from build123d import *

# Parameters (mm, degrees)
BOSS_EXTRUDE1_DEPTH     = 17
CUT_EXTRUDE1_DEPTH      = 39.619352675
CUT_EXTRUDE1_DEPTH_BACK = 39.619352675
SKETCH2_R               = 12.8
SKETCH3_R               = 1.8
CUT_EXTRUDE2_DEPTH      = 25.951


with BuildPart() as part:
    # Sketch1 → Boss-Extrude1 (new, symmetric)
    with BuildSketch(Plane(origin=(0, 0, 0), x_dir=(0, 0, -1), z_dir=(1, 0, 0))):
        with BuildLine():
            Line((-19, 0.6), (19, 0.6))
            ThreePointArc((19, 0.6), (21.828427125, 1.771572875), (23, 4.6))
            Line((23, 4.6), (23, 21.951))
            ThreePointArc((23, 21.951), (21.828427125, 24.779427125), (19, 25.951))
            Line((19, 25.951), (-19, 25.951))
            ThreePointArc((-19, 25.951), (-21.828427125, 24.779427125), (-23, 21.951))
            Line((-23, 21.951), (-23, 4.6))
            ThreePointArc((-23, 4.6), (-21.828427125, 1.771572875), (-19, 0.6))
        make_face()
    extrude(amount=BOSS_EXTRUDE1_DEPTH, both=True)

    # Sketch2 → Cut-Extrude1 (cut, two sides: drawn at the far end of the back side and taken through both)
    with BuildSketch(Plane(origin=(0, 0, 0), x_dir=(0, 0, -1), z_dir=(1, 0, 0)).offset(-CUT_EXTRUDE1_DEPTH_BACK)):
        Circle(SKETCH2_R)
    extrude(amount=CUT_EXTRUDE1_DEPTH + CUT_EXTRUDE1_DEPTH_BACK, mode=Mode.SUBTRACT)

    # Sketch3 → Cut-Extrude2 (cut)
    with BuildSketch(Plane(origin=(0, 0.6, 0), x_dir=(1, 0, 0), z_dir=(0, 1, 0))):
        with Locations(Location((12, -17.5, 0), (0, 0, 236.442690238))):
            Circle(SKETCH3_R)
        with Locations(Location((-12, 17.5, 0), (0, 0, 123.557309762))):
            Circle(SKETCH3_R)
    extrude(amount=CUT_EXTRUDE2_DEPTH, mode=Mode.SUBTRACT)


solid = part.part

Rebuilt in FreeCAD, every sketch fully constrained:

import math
import FreeCAD as App
import Part
import Sketcher

V = App.Vector

doc = App.newDocument("Part")
body = doc.addObject("PartDesign::Body", "Body")

# Sketch on YZ plane
sketch1 = doc.addObject("Sketcher::SketchObject", "Sketch")
body.addObject(sketch1)
sketch1.AttachmentSupport = (doc.YZ_Plane, [""])
sketch1.MapMode = "FlatFace"
sketch1.addGeometry([
    Part.LineSegment(V(0.6, 19, 0), V(0.6, -19, 0)),  # 0
    Part.ArcOfCircle(Part.Circle(V(4.6, -19, 0), V(0, 0, 1), 4), math.radians(180), math.radians(270)),  # 1
    Part.LineSegment(V(4.6, -23, 0), V(22, -23, 0)),  # 2
    Part.ArcOfCircle(Part.Circle(V(22, -19, 0), V(0, 0, 1), 4), math.radians(-90), math.radians(0)),  # 3
    Part.LineSegment(V(26, -19, 0), V(26, 19, 0)),  # 4
    Part.ArcOfCircle(Part.Circle(V(22, 19, 0), V(0, 0, 1), 4), math.radians(0), math.radians(90)),  # 5
    Part.LineSegment(V(22, 23, 0), V(4.6, 23, 0)),  # 6
    Part.ArcOfCircle(Part.Circle(V(4.6, 19, 0), V(0, 0, 1), 4), math.radians(90), math.radians(180)),  # 7
], False)
sketch1.addConstraint([
    Sketcher.Constraint("Tangent", 0, 2, 1, 1),
    Sketcher.Constraint("Tangent", 1, 2, 2, 1),
    Sketcher.Constraint("Tangent", 2, 2, 3, 1),
    Sketcher.Constraint("Tangent", 3, 2, 4, 1),
    Sketcher.Constraint("Tangent", 4, 2, 5, 1),
    Sketcher.Constraint("Tangent", 5, 2, 6, 1),
    Sketcher.Constraint("Tangent", 6, 2, 7, 1),
    Sketcher.Constraint("Tangent", 7, 2, 0, 1),
    Sketcher.Constraint("Vertical", 0),
    Sketcher.Constraint("Horizontal", 2),
    Sketcher.Constraint("Vertical", 4),
    Sketcher.Constraint("Horizontal", 6),
    Sketcher.Constraint("Equal", 1, 3),
    Sketcher.Constraint("Equal", 3, 5),
    Sketcher.Constraint("Equal", 5, 7),
    Sketcher.Constraint("Radius", 1, 4.0),
    Sketcher.Constraint("DistanceY", 0, 2, 0, 1, 38.0),
    Sketcher.Constraint("DistanceY", 1, 3, -1, 1, 19.0),
    Sketcher.Constraint("DistanceX", -1, 1, 1, 3, 4.6),
    Sketcher.Constraint("DistanceX", 2, 1, 2, 2, 17.351),
])
pad1 = doc.addObject("PartDesign::Pad", "Pad")
body.addObject(pad1)
pad1.Profile = sketch1
pad1.Length = 34
pad1.Midplane = True

# Sketch on YZ plane
sketch2 = doc.addObject("Sketcher::SketchObject", "Sketch001")
body.addObject(sketch2)
sketch2.AttachmentSupport = (doc.YZ_Plane, [""])
sketch2.MapMode = "FlatFace"
sketch2.addGeometry(Part.Circle(V(0, 0, 0), V(0, 0, 1), 13), False)
sketch2.addConstraint([
    Sketcher.Constraint("Coincident", 0, 3, -1, 1),
    Sketcher.Constraint("Diameter", 0, 25.6),
])
pocket1 = doc.addObject("PartDesign::Pocket", "Pocket")
body.addObject(pocket1)
pocket1.Profile = sketch2
pocket1.Type = "ThroughAll"
pocket1.Midplane = True

# Sketch on XZ plane
sketch3 = doc.addObject("Sketcher::SketchObject", "Sketch002")
body.addObject(sketch3)
sketch3.AttachmentSupport = (doc.XZ_Plane, [""])
sketch3.MapMode = "FlatFace"
sketch3.AttachmentOffset = App.Placement(V(0, 0, -0.6), App.Rotation())
sketch3.addGeometry([
    Part.Circle(V(12, 17.5, 0), V(0, 0, 1), 1.8),
    Part.Circle(V(-12, -17.5, 0), V(0, 0, 1), 1.8),
], False)
sketch3.addConstraint([
    Sketcher.Constraint("Equal", 0, 1),
    Sketcher.Constraint("Symmetric", 0, 3, 1, 3, -1, 1),
    Sketcher.Constraint("Diameter", 0, 3.6),
    Sketcher.Constraint("DistanceX", -1, 1, 0, 3, 12.0),
    Sketcher.Constraint("DistanceY", 1, 3, 0, 3, 35.0),
])
pocket2 = doc.addObject("PartDesign::Pocket", "Pocket001")
body.addObject(pocket2)
pocket2.Profile = sketch3
pocket2.Length = 25.951

doc.recompute()
